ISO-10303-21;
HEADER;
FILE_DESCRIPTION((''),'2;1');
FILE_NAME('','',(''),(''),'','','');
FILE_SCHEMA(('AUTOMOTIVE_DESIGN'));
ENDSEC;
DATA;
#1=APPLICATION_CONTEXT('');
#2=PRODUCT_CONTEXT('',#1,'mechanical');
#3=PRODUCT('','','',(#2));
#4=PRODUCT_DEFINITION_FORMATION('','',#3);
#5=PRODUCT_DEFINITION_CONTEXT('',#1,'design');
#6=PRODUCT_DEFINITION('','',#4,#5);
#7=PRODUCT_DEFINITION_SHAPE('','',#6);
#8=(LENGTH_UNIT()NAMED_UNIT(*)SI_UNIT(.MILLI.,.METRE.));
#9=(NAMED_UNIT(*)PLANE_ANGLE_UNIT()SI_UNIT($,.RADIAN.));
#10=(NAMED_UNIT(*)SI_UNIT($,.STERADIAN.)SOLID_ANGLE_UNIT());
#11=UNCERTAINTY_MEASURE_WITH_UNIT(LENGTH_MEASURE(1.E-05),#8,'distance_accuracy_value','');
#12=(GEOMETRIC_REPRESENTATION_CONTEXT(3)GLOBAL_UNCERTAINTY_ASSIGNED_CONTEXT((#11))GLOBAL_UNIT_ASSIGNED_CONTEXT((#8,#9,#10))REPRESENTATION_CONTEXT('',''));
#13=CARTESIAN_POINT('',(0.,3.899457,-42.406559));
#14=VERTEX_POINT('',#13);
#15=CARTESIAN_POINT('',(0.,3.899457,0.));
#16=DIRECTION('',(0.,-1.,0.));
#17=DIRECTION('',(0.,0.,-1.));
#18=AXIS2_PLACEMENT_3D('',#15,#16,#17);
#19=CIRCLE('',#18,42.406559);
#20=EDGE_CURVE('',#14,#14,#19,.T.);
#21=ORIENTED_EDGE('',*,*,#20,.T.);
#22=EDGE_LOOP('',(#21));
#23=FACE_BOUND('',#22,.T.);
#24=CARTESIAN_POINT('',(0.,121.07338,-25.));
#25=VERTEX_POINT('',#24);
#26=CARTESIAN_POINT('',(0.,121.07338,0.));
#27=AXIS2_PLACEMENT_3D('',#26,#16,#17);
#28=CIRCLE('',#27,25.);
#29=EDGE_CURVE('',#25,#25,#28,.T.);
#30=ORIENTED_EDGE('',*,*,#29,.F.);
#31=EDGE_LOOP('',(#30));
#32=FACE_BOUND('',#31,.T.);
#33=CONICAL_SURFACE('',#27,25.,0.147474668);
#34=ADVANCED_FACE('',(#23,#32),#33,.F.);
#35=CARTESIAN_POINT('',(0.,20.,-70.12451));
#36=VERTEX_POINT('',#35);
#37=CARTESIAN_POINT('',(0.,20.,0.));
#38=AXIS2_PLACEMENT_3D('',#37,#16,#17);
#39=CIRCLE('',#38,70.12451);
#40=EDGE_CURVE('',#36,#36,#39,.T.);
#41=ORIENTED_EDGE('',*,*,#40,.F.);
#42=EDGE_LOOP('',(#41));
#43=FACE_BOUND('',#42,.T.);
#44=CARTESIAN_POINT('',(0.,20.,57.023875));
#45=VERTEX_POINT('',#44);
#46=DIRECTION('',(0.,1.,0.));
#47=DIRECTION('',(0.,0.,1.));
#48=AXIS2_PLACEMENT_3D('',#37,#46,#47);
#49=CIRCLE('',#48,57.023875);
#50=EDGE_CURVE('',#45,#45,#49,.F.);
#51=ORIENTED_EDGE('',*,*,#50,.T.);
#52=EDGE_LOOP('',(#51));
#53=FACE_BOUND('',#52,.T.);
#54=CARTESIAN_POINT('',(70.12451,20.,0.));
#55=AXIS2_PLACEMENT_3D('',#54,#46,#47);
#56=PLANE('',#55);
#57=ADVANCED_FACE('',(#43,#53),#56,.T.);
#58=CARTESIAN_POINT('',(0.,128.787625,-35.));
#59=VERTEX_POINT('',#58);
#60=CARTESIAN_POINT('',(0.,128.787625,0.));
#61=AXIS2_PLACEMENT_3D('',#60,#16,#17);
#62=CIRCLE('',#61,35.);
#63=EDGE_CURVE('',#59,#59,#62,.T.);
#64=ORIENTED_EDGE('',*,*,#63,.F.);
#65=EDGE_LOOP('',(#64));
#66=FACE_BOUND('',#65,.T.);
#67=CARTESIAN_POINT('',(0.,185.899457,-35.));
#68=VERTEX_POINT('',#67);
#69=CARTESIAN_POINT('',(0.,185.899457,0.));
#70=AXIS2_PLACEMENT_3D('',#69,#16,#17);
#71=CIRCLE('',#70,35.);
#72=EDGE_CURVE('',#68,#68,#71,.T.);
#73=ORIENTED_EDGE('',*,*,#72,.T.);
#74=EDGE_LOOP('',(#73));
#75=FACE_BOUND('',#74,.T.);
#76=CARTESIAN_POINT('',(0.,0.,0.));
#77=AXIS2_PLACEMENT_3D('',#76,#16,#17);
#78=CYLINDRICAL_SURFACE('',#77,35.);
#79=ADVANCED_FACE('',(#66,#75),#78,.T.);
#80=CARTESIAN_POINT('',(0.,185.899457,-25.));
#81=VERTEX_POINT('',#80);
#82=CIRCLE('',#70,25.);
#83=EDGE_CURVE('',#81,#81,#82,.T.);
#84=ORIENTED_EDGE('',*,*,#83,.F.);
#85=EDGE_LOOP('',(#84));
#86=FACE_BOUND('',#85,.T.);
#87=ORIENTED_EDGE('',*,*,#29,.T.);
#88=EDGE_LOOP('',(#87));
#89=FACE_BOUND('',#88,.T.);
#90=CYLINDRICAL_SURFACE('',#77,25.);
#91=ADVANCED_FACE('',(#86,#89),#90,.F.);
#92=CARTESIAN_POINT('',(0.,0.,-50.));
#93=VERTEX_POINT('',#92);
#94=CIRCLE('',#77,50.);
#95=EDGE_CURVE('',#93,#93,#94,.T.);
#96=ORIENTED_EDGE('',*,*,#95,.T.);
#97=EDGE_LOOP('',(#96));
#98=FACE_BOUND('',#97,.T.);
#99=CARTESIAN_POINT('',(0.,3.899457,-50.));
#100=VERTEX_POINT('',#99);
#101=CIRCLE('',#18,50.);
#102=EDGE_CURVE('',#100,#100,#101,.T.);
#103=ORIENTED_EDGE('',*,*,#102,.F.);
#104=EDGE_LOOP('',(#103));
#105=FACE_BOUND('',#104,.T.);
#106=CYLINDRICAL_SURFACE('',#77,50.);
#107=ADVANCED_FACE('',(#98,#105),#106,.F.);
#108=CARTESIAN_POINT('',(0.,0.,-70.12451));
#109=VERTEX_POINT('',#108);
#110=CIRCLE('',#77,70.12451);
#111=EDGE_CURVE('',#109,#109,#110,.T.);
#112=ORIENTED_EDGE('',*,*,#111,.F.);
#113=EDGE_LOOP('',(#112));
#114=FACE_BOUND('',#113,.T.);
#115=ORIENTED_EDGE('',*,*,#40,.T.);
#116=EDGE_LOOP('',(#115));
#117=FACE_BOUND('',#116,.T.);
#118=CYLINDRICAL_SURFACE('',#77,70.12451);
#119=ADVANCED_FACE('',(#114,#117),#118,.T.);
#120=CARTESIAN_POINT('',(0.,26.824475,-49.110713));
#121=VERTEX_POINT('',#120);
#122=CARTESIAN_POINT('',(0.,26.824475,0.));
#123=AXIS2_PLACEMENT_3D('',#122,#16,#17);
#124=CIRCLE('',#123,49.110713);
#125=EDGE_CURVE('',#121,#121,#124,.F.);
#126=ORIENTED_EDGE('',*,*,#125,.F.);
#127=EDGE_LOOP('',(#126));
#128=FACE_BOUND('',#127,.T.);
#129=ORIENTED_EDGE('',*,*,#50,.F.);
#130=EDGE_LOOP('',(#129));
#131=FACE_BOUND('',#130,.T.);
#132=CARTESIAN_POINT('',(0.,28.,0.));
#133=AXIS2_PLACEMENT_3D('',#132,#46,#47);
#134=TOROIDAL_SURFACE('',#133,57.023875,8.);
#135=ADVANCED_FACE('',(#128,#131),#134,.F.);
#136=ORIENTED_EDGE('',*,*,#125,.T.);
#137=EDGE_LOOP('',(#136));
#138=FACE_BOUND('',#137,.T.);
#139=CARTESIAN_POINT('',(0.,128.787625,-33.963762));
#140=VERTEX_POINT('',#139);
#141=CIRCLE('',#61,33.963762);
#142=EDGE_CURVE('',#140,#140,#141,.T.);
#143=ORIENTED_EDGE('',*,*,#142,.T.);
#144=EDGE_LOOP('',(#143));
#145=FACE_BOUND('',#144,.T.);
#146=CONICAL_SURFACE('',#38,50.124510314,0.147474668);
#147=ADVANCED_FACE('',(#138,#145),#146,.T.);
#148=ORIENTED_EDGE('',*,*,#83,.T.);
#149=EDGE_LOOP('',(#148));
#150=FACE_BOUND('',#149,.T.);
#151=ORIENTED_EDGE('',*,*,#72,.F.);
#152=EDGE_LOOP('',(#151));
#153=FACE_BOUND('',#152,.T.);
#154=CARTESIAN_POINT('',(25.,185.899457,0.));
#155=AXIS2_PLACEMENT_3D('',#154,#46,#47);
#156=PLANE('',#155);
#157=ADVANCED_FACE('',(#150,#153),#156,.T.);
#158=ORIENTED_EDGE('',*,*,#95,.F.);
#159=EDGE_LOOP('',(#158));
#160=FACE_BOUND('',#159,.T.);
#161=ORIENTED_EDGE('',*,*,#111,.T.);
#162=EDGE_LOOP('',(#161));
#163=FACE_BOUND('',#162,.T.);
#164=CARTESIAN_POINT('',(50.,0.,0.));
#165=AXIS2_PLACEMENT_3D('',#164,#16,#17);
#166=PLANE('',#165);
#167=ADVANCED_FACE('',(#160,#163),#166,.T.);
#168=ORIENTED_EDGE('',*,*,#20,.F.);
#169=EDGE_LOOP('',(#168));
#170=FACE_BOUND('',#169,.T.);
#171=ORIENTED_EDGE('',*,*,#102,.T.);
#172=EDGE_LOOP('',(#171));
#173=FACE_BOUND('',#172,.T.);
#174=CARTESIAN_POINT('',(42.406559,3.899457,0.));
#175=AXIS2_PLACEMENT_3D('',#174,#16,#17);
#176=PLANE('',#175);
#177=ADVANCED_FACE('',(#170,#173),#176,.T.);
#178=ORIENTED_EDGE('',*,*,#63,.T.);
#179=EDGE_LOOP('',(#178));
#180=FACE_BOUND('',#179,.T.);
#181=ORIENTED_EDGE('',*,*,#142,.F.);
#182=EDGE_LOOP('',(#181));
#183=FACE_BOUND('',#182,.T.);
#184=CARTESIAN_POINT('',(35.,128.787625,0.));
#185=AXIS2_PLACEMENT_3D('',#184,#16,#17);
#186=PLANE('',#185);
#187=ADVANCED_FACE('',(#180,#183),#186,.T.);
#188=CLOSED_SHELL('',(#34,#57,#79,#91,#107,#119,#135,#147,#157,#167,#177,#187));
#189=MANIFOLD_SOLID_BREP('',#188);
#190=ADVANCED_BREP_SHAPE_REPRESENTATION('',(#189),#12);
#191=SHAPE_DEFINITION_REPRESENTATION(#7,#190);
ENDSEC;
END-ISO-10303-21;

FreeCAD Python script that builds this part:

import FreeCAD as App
import Part
import Sketcher
from FreeCAD import Vector
Q = App.Units.Quantity


def edges_at(feature, points):
    """Names of the edges that pass closest to the given points."""
    edges = feature.Shape.Edges
    near = lambda p: min(range(len(edges)), key=lambda i: edges[i].distToShape(Part.Vertex(*p))[0])
    return sorted({f"Edge{near(p) + 1}" for p in points})

doc = App.newDocument("Part")
params = doc.addObject("Spreadsheet::Sheet", "Params")
for row, (alias, value) in enumerate([
    ("sketch1_width", "10 mm"),
    ("sketch1_width2", "20 mm"),
    ("revolution_angle", "360 deg"),
    ("fillet_radius", "8 mm"),
], start=1):
    params.set(f"A{row}", alias)
    params.set(f"B{row}", "=" + value)
    params.setAlias(f"B{row}", alias)

body = doc.addObject("PartDesign::Body", "Body")

sketch1 = body.newObject("Sketcher::SketchObject", "Sketch")
sketch1.AttachmentSupport = (doc.getObject("XY_Plane"), [""])
sketch1.MapMode = "FlatFace"
sketch1.addGeometry([
    Part.LineSegment(Vector(35, 185.9, 0), Vector(25, 185.9, 0)),
    Part.LineSegment(Vector(25, 185.9, 0), Vector(25, 121.1, 0)),
    Part.LineSegment(Vector(25, 121.1, 0), Vector(42.4, 3.9, 0)),
    Part.LineSegment(Vector(42.4, 3.9, 0), Vector(50, 3.9, 0)),
    Part.LineSegment(Vector(50, 3.9, 0), Vector(50, 0, 0)),
    Part.LineSegment(Vector(50, 0, 0), Vector(70.1, 0, 0)),
    Part.LineSegment(Vector(70.1, 0, 0), Vector(70.1, 20, 0)),
    Part.LineSegment(Vector(70.1, 20, 0), Vector(50.1, 20, 0)),
    Part.LineSegment(Vector(50.1, 20, 0), Vector(34, 128.8, 0)),
    Part.LineSegment(Vector(34, 128.8, 0), Vector(35, 128.8, 0)),
    Part.LineSegment(Vector(35, 128.8, 0), Vector(35, 185.9, 0)),
], False)
sketch1.addConstraint([
    Sketcher.Constraint("Coincident", 0, 2, 1, 1),
    Sketcher.Constraint("Coincident", 1, 2, 2, 1),
    Sketcher.Constraint("Coincident", 2, 2, 3, 1),
    Sketcher.Constraint("Coincident", 3, 2, 4, 1),
    Sketcher.Constraint("Coincident", 4, 2, 5, 1),
    Sketcher.Constraint("Coincident", 5, 2, 6, 1),
    Sketcher.Constraint("Coincident", 6, 2, 7, 1),
    Sketcher.Constraint("Coincident", 7, 2, 8, 1),
    Sketcher.Constraint("Coincident", 8, 2, 9, 1),
    Sketcher.Constraint("Coincident", 9, 2, 10, 1),
    Sketcher.Constraint("Coincident", 10, 2, 0, 1),
    Sketcher.Constraint("Horizontal", 0),
    Sketcher.Constraint("Vertical", 1),
    Sketcher.Constraint("Horizontal", 3),
    Sketcher.Constraint("Vertical", 4),
    Sketcher.Constraint("Horizontal", 5),
    Sketcher.Constraint("Vertical", 6),
    Sketcher.Constraint("Horizontal", 7),
    Sketcher.Constraint("Horizontal", 9),
    Sketcher.Constraint("Vertical", 10),
    Sketcher.Constraint("PointOnObject", 4, 2, -1),
    Sketcher.Constraint("Parallel", 2, 8),
    Sketcher.Constraint("Equal", 7, 6),
    Sketcher.Constraint("DistanceX", 0, 2, 0, 1, Q("10 mm")),
    Sketcher.Constraint("DistanceX", 7, 2, 7, 1, Q("20 mm")),
    Sketcher.Constraint("DistanceX", -1, 1, 0, 2, Q("25 mm")),
    Sketcher.Constraint("DistanceX", -1, 1, 3, 2, Q("50 mm")),
    Sketcher.Constraint("DistanceY", 2, 2, 0, 2, Q("182 mm")),
    Sketcher.Constraint("DistanceX", 3, 1, 3, 2, Q("7.593441 mm")),
    Sketcher.Constraint("DistanceX", 5, 1, 5, 2, Q("20.12451 mm")),
    Sketcher.Constraint("Distance", 8, Q("109.98144 mm")),
    Sketcher.Constraint("DistanceX", 9, 1, 9, 2, Q("1.036238 mm")),
    Sketcher.Constraint("DistanceY", 4, 2, 4, 1, Q("3.899457 mm")),
])
sketch1.setExpression("Constraints[23]", "Params.sketch1_width")
sketch1.setExpression("Constraints[24]", "Params.sketch1_width2")
revolution = body.newObject("PartDesign::Revolution", "Revolution")
revolution.Profile = sketch1
revolution.ReferenceAxis = (sketch1, ["V_Axis"])
revolution.setExpression("Angle", "Params.revolution_angle")
doc.recompute()

fillet = body.newObject("PartDesign::Fillet", "Fillet")
fillet.Base = (revolution, edges_at(revolution, [(0, 20, 50.125)]))
fillet.setExpression("Radius", "Params.fillet_radius")

doc.recompute()
